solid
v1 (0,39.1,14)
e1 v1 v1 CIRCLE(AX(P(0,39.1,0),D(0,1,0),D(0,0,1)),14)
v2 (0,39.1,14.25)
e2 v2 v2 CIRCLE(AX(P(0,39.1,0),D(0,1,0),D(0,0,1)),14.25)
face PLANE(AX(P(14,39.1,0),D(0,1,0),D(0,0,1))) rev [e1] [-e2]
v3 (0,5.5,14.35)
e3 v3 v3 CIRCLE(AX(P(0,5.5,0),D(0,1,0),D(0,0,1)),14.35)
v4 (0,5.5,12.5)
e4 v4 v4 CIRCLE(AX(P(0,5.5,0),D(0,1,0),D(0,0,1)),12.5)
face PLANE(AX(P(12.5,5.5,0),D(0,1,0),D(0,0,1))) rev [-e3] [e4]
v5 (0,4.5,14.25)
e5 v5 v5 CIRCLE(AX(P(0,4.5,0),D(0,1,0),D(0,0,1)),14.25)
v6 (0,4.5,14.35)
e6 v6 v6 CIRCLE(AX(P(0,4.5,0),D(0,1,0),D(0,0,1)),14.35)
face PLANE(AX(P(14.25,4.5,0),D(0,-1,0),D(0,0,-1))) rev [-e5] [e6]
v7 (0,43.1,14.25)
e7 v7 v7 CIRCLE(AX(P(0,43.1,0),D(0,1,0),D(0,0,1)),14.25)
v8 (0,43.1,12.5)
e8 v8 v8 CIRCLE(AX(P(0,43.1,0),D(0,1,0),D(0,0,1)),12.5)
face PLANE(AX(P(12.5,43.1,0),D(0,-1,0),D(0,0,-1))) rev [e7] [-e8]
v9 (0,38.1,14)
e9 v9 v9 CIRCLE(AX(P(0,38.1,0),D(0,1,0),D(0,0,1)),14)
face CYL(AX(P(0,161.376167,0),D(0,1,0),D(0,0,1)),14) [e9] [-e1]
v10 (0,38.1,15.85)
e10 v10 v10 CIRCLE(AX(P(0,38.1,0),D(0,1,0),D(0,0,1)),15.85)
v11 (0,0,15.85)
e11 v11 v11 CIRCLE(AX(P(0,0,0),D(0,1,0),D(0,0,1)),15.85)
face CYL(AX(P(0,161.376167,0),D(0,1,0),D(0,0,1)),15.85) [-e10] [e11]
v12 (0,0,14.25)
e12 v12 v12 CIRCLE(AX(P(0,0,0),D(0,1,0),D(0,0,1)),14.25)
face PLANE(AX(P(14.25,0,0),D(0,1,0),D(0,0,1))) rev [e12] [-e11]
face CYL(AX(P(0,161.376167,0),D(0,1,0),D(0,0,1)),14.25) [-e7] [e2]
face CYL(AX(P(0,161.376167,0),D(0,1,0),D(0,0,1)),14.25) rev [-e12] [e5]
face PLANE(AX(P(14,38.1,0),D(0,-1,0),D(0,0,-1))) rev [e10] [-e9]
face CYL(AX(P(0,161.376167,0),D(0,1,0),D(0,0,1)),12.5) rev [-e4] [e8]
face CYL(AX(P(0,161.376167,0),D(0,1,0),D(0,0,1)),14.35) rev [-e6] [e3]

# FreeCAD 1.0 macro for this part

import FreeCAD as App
import Part
import Sketcher

V = App.Vector


def add_polygon(sketch, points):
    """Adds a closed chain of lines whose ends are joined by coincident constraints."""
    first, n = sketch.GeometryCount, len(points)
    for a, b in zip(points, points[1:] + points[:1]):
        sketch.addGeometry(Part.LineSegment(App.Vector(*a, 0), App.Vector(*b, 0)), False)
    for i in range(n):
        sketch.addConstraint(Sketcher.Constraint("Coincident", first + i, 2, first + (i + 1) % n, 1))

doc = App.newDocument("Part")
body = doc.addObject("PartDesign::Body", "Body")

sketch1 = body.newObject("Sketcher::SketchObject", "Sketch")
sketch1.AttachmentSupport = (doc.getObject("XY_Plane"), [""])
sketch1.MapMode = "FlatFace"
add_polygon(sketch1, [(14.25, 4.5), (14.25, 0), (15.85, 0), (15.85, 38.1), (14, 38.1), (14, 39.1), (14.25, 39.1), (14.25, 43.1), (12.5, 43.1), (12.5, 5.5), (14.35, 5.5), (14.35, 4.5)])
sketch1.addConstraint(Sketcher.Constraint("Vertical", 0))
sketch1.addConstraint(Sketcher.Constraint("Horizontal", 1))
sketch1.addConstraint(Sketcher.Constraint("Vertical", 2))
sketch1.addConstraint(Sketcher.Constraint("Horizontal", 3))
sketch1.addConstraint(Sketcher.Constraint("Vertical", 4))
sketch1.addConstraint(Sketcher.Constraint("Horizontal", 5))
sketch1.addConstraint(Sketcher.Constraint("Vertical", 6))
sketch1.addConstraint(Sketcher.Constraint("Horizontal", 7))
sketch1.addConstraint(Sketcher.Constraint("Vertical", 8))
sketch1.addConstraint(Sketcher.Constraint("Horizontal", 9))
sketch1.addConstraint(Sketcher.Constraint("Vertical", 10))
sketch1.addConstraint(Sketcher.Constraint("Horizontal", 11))
sketch1.addConstraint(Sketcher.Constraint("PointOnObject", 0, 2, -1))
sketch1.addConstraint(Sketcher.Constraint("Vertical", 0, 2, 5, 2))
sketch1.addConstraint(Sketcher.Constraint("Equal", 3, 9))
sketch1.addConstraint(Sketcher.Constraint("Equal", 4, 10))
sketch1.addConstraint(Sketcher.Constraint("DistanceY", 4, 1, 4, 2, 1.0))
sketch1.addConstraint(Sketcher.Constraint("DistanceY", 6, 1, 6, 2, 4.0))
sketch1.addConstraint(Sketcher.Constraint("DistanceX", 1, 1, 1, 2, 1.6))
sketch1.addConstraint(Sketcher.Constraint("DistanceX", 11, 2, 11, 1, 0.1))
sketch1.addConstraint(Sketcher.Constraint("DistanceY", 0, 2, 0, 1, 4.5))
sketch1.addConstraint(Sketcher.Constraint("DistanceY", 2, 1, 2, 2, 38.1))
sketch1.addConstraint(Sketcher.Constraint("DistanceX", -1, 1, 3, 2, 14.0))
sketch1.addConstraint(Sketcher.Constraint("DistanceX", 3, 2, 3, 1, 1.85))
revolution = body.newObject("PartDesign::Revolution", "Revolution")
revolution.Profile = sketch1
revolution.ReferenceAxis = (sketch1, ["V_Axis"])
revolution.Angle = 360

doc.recompute()
